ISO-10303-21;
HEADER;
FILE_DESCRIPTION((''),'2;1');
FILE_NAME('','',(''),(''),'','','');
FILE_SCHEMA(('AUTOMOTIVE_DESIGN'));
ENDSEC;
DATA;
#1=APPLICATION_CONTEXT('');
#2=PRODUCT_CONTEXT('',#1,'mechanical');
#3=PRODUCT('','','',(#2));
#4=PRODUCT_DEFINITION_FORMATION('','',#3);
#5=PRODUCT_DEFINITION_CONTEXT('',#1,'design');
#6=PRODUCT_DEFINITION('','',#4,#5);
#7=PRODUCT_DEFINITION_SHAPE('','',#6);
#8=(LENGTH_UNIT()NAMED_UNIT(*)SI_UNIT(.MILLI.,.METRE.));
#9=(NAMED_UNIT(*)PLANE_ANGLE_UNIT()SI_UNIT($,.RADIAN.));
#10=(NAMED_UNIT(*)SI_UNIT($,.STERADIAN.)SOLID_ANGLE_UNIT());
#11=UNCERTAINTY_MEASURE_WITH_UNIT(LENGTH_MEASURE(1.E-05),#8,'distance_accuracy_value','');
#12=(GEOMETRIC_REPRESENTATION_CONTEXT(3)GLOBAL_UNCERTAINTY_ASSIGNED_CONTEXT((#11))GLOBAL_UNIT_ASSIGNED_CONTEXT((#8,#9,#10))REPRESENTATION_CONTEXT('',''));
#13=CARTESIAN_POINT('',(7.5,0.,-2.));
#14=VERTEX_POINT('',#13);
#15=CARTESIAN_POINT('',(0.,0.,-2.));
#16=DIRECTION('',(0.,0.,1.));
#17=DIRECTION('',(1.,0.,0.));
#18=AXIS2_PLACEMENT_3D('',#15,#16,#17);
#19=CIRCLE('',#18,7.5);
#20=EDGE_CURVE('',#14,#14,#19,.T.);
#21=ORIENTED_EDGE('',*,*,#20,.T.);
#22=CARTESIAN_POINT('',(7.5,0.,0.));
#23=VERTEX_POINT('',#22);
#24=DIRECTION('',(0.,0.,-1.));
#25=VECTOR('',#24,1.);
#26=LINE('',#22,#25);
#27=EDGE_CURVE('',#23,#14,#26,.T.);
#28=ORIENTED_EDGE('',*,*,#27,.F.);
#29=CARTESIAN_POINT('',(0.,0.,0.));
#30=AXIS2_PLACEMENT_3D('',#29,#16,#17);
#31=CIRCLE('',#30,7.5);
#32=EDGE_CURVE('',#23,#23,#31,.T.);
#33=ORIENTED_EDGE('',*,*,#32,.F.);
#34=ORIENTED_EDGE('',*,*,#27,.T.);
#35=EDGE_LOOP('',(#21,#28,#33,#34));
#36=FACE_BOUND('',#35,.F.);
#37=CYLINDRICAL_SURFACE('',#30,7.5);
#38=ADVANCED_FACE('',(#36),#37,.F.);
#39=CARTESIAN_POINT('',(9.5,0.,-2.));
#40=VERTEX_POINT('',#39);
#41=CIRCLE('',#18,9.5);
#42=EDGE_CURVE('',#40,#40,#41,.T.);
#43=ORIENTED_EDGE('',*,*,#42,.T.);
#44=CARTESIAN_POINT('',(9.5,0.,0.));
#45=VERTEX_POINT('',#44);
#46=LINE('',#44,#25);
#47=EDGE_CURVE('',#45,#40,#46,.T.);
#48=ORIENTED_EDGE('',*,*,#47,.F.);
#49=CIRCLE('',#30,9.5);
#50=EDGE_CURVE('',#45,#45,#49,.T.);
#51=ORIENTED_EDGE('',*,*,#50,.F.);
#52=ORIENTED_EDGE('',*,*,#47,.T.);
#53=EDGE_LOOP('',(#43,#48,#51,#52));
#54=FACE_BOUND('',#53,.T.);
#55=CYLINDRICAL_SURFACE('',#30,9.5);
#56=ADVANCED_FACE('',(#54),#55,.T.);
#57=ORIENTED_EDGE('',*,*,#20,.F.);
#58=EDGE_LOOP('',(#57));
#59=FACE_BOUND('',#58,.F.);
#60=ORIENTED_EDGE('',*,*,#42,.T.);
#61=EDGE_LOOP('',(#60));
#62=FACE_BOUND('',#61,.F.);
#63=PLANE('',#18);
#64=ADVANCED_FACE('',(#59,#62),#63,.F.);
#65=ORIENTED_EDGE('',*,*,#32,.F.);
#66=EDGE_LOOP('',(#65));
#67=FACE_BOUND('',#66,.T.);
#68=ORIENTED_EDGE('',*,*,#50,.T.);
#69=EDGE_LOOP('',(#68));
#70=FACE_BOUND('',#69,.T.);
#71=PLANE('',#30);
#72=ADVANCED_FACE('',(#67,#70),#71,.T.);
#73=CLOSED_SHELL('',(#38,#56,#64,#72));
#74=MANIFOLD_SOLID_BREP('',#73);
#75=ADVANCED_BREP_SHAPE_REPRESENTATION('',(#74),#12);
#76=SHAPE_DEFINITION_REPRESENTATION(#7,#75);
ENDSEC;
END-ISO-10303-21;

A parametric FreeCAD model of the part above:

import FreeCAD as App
import Part
import Sketcher
from FreeCAD import Vector

doc = App.newDocument("Part")
body = doc.addObject("PartDesign::Body", "Body")

# Sketch on XY plane
sketch1 = body.newObject("Sketcher::SketchObject", "Sketch")
sketch1.AttachmentSupport = (doc.getObject("XY_Plane"), [""])
sketch1.MapMode = "FlatFace"
sketch1.addGeometry([
    Part.Circle(Vector(0, 0, 0), Vector(0, 0, 1), 9.5),
    Part.Circle(Vector(0, 0, 0), Vector(0, 0, 1), 7.5),
], False)
sketch1.addConstraint([
    Sketcher.Constraint("Coincident", 0, 3, -1, 1),
    Sketcher.Constraint("Coincident", 1, 3, -1, 1),
    Sketcher.Constraint("Diameter", 0, 19.0),
    Sketcher.Constraint("Diameter", 1, 15.0),
])
pad1 = body.newObject("PartDesign::Pad", "Pad")
pad1.Profile = sketch1
pad1.Length = 2
pad1.Reversed = True

doc.recompute()
